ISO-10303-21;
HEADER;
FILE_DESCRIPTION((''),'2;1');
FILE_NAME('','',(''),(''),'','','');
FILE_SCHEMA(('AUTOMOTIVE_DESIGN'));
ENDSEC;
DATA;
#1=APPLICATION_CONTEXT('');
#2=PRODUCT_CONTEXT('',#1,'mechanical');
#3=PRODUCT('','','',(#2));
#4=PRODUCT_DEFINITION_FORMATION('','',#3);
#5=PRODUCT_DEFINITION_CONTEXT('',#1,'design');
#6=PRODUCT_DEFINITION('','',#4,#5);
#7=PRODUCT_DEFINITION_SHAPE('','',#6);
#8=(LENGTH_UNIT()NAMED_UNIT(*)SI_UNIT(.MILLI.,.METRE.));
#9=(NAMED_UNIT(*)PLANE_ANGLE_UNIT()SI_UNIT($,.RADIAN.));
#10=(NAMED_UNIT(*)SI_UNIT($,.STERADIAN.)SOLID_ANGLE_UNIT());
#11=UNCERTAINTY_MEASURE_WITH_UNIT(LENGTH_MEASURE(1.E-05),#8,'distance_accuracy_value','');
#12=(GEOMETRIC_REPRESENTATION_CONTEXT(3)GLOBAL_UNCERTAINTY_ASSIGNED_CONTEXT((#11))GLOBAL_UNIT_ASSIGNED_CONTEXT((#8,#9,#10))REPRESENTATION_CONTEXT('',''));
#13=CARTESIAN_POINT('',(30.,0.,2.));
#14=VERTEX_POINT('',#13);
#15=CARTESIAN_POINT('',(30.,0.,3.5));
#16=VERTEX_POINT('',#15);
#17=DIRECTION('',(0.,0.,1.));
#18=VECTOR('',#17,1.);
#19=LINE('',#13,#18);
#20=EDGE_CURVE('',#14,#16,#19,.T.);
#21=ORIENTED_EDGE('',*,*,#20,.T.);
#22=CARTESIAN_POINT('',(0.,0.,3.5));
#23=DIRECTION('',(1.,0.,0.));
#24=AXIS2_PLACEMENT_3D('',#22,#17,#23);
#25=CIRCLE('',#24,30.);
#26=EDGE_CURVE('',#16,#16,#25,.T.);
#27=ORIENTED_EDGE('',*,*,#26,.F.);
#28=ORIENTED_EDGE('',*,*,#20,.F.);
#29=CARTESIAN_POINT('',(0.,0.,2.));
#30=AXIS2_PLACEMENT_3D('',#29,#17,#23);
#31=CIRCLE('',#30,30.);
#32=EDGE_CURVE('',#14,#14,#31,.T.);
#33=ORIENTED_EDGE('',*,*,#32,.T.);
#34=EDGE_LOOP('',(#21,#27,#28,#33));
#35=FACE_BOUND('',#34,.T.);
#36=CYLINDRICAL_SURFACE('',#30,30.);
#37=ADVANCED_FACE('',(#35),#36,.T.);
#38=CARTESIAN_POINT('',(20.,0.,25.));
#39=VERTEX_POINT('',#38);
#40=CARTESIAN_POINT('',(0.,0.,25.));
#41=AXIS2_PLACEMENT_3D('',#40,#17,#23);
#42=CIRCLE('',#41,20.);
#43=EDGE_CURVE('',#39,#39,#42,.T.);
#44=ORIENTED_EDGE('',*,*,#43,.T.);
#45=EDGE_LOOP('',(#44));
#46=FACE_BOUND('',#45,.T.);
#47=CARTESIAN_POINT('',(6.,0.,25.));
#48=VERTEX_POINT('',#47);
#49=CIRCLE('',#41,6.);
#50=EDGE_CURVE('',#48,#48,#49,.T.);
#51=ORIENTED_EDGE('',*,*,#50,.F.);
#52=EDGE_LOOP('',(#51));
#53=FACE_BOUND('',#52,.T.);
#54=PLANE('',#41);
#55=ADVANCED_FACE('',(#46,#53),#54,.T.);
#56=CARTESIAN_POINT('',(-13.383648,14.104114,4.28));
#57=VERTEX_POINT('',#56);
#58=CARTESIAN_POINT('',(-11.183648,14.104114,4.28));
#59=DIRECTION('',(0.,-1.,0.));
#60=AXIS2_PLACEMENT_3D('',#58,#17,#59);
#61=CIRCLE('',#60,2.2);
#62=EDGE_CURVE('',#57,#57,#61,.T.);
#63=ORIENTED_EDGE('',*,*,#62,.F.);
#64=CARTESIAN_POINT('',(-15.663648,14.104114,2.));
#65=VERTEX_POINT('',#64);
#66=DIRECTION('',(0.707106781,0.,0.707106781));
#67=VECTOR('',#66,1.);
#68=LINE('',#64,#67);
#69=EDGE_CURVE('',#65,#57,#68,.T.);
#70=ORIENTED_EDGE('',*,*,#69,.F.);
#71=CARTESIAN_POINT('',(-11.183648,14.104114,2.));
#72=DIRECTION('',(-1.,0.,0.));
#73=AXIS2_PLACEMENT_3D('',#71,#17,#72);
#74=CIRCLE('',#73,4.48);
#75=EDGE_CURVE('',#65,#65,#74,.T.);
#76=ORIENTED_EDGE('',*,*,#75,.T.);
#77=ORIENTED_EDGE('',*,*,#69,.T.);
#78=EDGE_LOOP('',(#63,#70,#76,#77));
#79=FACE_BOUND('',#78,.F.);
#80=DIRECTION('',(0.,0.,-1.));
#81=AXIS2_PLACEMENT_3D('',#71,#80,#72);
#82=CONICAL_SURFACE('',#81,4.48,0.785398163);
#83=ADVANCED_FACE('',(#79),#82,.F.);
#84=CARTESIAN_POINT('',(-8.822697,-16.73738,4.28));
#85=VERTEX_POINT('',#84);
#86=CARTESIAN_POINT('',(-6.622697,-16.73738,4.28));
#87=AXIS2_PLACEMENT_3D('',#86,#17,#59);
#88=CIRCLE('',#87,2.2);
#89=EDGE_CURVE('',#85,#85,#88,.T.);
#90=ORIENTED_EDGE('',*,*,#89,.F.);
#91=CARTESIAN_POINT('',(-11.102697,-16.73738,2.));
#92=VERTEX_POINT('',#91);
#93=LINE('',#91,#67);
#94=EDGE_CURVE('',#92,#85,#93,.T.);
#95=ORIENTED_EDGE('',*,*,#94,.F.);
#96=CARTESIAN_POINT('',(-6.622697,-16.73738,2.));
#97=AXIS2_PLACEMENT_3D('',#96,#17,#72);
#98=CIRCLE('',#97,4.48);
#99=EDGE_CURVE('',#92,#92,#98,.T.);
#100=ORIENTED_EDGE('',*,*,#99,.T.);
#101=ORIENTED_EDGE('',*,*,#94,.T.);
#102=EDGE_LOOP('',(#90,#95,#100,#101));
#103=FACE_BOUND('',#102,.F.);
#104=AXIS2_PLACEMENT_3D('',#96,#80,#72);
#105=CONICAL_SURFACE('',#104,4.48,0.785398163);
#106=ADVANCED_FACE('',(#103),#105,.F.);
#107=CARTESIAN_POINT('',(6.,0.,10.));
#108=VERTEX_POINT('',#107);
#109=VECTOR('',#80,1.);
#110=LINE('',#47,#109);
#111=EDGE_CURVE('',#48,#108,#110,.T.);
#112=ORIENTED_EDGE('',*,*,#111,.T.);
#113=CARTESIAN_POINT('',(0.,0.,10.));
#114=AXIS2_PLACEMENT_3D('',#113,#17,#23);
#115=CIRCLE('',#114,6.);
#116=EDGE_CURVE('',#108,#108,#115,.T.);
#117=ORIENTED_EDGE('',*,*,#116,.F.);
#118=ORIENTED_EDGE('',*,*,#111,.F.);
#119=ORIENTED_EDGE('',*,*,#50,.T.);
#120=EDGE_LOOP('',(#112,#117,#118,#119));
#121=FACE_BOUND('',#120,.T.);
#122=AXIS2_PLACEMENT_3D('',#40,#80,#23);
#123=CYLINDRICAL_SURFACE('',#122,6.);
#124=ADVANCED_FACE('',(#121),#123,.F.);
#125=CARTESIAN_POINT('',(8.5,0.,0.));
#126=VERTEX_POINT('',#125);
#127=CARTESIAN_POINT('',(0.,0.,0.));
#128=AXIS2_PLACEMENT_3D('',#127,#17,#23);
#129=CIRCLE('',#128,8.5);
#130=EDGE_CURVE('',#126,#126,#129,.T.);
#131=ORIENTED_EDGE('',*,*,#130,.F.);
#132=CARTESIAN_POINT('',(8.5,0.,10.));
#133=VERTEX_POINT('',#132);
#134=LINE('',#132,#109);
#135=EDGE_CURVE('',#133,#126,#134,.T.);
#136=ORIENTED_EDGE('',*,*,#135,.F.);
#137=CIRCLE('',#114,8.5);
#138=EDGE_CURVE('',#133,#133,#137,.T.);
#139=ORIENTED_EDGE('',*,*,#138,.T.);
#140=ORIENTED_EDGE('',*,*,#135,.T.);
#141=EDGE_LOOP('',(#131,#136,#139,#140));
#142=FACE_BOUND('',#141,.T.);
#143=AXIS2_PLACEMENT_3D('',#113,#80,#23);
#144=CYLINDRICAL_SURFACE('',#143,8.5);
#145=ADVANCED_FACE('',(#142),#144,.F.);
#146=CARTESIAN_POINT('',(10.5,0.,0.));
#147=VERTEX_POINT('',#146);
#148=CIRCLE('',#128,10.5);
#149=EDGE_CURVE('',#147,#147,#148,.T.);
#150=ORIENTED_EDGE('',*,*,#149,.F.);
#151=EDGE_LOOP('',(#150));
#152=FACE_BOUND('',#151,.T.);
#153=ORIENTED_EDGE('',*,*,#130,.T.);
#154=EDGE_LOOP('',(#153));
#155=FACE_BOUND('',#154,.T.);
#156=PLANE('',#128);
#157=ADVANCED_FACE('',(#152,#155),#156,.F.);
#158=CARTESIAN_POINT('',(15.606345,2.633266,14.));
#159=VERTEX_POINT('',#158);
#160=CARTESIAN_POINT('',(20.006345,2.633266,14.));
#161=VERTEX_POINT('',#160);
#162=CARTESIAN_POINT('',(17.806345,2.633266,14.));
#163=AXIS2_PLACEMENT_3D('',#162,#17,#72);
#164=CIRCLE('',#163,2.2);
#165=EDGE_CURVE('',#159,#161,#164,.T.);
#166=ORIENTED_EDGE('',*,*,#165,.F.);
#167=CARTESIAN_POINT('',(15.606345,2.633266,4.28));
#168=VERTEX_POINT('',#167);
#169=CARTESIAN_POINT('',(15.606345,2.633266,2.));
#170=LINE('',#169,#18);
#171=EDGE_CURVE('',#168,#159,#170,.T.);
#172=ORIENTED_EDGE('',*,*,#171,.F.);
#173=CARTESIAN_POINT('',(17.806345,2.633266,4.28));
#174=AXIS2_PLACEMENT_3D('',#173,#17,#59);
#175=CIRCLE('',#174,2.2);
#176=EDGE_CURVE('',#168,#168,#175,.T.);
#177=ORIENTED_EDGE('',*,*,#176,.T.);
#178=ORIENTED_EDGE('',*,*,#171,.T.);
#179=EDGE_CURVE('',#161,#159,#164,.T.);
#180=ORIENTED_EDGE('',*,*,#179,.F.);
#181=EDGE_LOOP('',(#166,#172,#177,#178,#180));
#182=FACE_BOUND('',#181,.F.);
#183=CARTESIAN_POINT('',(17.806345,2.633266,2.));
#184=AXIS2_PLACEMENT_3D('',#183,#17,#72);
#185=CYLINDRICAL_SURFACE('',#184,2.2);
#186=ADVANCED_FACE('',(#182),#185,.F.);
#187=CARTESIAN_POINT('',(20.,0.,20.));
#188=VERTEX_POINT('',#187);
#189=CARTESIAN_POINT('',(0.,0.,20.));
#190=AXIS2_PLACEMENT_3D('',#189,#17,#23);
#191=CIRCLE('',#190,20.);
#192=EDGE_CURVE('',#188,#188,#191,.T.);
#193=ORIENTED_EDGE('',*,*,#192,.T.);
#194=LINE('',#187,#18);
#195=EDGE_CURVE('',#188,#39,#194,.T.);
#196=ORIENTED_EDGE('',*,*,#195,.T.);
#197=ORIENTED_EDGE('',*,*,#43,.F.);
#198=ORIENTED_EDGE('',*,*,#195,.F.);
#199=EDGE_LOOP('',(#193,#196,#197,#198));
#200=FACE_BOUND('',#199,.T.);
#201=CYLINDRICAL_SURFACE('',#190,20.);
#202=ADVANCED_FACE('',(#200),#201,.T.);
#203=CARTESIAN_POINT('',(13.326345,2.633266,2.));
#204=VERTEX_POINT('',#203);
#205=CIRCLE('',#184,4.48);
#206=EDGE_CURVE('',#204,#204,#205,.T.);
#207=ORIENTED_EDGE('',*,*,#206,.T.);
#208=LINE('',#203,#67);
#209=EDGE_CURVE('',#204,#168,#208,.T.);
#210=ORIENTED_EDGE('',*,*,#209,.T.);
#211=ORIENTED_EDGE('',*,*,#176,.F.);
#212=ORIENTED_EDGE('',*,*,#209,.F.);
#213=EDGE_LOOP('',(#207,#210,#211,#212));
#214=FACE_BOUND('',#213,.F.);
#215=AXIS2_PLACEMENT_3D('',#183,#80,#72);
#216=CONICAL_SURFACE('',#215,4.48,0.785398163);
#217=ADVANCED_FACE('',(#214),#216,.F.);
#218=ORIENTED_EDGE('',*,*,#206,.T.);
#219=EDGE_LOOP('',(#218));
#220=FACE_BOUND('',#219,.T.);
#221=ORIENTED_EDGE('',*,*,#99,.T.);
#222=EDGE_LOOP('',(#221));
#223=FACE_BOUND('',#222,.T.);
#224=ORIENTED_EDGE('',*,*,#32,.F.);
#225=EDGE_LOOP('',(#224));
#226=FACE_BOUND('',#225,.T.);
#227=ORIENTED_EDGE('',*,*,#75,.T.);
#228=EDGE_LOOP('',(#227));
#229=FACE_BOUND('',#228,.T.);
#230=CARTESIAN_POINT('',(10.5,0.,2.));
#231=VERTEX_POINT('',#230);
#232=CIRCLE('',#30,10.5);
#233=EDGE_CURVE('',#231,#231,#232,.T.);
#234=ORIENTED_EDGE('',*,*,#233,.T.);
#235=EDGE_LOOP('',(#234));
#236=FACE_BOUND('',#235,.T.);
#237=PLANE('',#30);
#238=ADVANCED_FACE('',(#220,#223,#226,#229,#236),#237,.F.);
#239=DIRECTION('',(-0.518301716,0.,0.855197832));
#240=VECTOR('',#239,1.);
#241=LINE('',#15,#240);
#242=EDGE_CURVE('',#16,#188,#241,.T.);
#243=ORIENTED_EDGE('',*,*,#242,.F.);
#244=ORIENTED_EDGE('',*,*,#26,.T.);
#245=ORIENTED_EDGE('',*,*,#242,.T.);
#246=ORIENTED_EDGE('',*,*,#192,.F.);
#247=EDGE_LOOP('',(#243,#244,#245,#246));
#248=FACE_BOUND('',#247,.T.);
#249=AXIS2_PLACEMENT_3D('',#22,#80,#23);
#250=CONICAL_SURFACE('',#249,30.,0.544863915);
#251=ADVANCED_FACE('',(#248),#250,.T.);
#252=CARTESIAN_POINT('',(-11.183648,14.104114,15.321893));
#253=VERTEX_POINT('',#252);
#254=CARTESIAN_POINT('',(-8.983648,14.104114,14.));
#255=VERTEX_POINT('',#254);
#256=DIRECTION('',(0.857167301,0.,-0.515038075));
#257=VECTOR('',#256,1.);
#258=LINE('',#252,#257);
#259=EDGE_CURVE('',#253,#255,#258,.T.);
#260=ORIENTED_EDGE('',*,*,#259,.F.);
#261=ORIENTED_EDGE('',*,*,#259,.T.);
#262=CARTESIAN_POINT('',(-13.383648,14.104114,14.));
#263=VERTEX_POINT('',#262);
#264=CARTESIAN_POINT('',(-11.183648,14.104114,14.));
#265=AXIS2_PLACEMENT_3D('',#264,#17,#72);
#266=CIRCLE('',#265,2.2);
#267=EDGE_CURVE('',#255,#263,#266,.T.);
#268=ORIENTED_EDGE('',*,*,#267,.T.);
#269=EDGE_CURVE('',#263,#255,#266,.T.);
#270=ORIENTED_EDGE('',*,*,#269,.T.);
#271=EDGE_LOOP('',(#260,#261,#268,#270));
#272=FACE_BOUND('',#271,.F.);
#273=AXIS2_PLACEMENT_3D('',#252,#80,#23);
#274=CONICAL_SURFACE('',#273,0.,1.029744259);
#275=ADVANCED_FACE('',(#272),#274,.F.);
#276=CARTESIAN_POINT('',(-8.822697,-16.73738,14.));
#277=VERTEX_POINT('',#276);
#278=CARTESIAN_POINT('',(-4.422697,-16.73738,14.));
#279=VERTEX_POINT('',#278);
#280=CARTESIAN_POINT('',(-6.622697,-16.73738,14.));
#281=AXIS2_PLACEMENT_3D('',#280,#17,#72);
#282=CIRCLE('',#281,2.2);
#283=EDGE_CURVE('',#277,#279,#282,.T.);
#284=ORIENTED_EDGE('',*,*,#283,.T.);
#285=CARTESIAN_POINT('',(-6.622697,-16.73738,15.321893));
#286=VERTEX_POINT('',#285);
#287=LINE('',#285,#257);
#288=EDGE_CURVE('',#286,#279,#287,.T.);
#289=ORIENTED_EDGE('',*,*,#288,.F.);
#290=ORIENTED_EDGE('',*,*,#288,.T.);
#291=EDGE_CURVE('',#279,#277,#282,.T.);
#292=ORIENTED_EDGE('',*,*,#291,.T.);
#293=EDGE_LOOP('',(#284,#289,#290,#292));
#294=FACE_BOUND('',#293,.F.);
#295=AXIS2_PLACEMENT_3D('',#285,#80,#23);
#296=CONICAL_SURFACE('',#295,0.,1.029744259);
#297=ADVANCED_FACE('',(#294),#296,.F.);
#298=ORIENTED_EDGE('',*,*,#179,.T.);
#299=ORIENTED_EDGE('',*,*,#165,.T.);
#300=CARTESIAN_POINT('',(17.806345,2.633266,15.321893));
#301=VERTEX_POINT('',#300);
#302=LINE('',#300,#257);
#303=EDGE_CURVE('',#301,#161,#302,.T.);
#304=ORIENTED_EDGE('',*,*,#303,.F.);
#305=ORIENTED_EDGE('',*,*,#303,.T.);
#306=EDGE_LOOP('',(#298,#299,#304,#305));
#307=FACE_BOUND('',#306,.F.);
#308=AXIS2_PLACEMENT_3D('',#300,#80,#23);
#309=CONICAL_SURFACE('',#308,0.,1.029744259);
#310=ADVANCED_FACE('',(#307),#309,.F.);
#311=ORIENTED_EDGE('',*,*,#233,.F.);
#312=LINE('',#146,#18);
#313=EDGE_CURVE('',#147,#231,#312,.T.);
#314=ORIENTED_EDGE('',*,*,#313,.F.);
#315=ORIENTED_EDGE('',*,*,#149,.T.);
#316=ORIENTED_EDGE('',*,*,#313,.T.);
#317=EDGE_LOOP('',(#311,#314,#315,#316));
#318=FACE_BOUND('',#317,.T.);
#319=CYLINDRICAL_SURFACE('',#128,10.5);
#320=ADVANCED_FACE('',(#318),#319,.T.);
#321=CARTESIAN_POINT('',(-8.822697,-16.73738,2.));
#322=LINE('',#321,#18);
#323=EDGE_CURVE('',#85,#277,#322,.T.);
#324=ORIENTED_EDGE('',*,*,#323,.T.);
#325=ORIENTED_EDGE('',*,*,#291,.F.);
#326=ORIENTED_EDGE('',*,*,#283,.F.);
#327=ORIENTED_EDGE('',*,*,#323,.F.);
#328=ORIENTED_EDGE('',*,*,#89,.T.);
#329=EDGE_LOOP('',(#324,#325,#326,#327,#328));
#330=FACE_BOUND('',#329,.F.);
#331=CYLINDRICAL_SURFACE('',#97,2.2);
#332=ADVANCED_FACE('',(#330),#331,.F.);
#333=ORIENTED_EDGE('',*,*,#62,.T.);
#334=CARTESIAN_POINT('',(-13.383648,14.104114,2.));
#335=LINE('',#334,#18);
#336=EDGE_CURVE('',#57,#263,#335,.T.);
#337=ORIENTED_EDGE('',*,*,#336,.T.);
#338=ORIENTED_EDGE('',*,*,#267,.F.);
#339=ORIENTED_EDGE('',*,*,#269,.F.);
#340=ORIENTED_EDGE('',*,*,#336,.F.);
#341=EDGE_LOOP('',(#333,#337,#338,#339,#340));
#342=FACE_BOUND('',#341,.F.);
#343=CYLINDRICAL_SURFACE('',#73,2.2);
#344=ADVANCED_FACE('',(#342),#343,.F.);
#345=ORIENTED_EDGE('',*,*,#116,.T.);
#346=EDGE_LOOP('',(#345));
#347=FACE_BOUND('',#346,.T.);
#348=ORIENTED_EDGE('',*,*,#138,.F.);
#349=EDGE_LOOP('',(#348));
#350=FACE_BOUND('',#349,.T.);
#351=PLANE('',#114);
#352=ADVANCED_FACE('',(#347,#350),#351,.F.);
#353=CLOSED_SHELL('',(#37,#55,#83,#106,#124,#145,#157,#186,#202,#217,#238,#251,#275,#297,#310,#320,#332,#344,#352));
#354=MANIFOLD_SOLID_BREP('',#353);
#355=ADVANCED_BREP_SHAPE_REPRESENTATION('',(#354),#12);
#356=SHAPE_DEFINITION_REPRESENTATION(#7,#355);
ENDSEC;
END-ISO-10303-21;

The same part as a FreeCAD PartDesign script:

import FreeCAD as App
import Part
import Sketcher
from FreeCAD import Vector


def add_polygon(sketch, points):
    """Adds a closed chain of lines whose ends are joined by coincident constraints."""
    first, n = sketch.GeometryCount, len(points)
    for a, b in zip(points, points[1:] + points[:1]):
        sketch.addGeometry(Part.LineSegment(App.Vector(*a, 0), App.Vector(*b, 0)), False)
    for i in range(n):
        sketch.addConstraint(Sketcher.Constraint("Coincident", first + i, 2, first + (i + 1) % n, 1))

doc = App.newDocument("Part")
params = doc.addObject("Spreadsheet::Sheet", "Params")
for row, (alias, value) in enumerate([
    ("sketch1_width", "14 mm"),
    ("sketch1_width2", "2 mm"),
    ("sketch1_height", "15 mm"),
    ("sketch1_height2", "10 mm"),
    ("sketch1_height3", "5 mm"),
    ("revolution_angle", "360 deg"),
    ("sketch2_diameter", "4.4 mm"),
    ("hole_diameter", "4.4 mm"),
    ("hole_depth", "12 mm"),
    ("hole_csink_diameter", "8.96 mm"),
], start=1):
    params.set(f"A{row}", alias)
    params.set(f"B{row}", "=" + value)
    params.setAlias(f"B{row}", alias)

body = doc.addObject("PartDesign::Body", "Body")

# Sketch on XZ plane
sketch1 = doc.addObject("Sketcher::SketchObject", "Sketch")
body.addObject(sketch1)
sketch1.AttachmentSupport = (doc.XZ_Plane, [""])
sketch1.MapMode = "FlatFace"
add_polygon(sketch1, [(20, 25), (6, 25), (6, 10), (8.5, 10), (8.5, 0), (10.5, 0), (10.5, 2), (30, 2), (30, 3.5), (20, 20)])  # lines 0-9
sketch1.addConstraint([
    Sketcher.Constraint("Horizontal", 0),
    Sketcher.Constraint("Vertical", 1),
    Sketcher.Constraint("Horizontal", 2),
    Sketcher.Constraint("Vertical", 3),
    Sketcher.Constraint("Horizontal", 4),
    Sketcher.Constraint("Vertical", 5),
    Sketcher.Constraint("Horizontal", 6),
    Sketcher.Constraint("Vertical", 7),
    Sketcher.Constraint("Vertical", 9),
    Sketcher.Constraint("PointOnObject", 3, 2, -1),
    Sketcher.Constraint("Equal", 4, 5),
    Sketcher.Constraint("DistanceX", 0, 2, 0, 1, 14.0),
    Sketcher.Constraint("DistanceX", 4, 1, 4, 2, 2.0),
    Sketcher.Constraint("DistanceY", 1, 2, 1, 1, 15.0),
    Sketcher.Constraint("DistanceY", 3, 2, 3, 1, 10.0),
    Sketcher.Constraint("DistanceY", 9, 1, 9, 2, 5.0),
    Sketcher.Constraint("DistanceX", 2, 1, 2, 2, 2.5),
    Sketcher.Constraint("DistanceX", 6, 1, 6, 2, 19.5),
    Sketcher.Constraint("DistanceY", 7, 1, 7, 2, 1.5),
    Sketcher.Constraint("DistanceX", -1, 1, 0, 2, 6.0),
])
sketch1.setExpression("Constraints[21]", "Params.sketch1_width")
sketch1.setExpression("Constraints[22]", "Params.sketch1_width2")
sketch1.setExpression("Constraints[23]", "Params.sketch1_height")
sketch1.setExpression("Constraints[24]", "Params.sketch1_height2")
sketch1.setExpression("Constraints[25]", "Params.sketch1_height3")
revolution = doc.addObject("PartDesign::Revolution", "Revolution")
body.addObject(revolution)
revolution.Profile = sketch1
revolution.ReferenceAxis = (sketch1, ["V_Axis"])
revolution.setExpression("Angle", "Params.revolution_angle")

# Sketch on XY plane
sketch2 = doc.addObject("Sketcher::SketchObject", "Sketch001")
body.addObject(sketch2)
sketch2.AttachmentSupport = (doc.XY_Plane, [""])
sketch2.MapMode = "FlatFace"
sketch2.AttachmentOffset = App.Placement(Vector(0, 0, 2), App.Rotation())
sketch2.addGeometry([
    Part.Circle(Vector(-6.6, -16.7, 0), Vector(0, 0, 1), 2.2),
    Part.Circle(Vector(-11.2, 14.1, 0), Vector(0, 0, 1), 2.2),
    Part.Circle(Vector(17.8, 2.6, 0), Vector(0, 0, 1), 2.2),
], False)
sketch2.addConstraint([
    Sketcher.Constraint("Equal", 0, 1),
    Sketcher.Constraint("Equal", 1, 2),
    Sketcher.Constraint("Diameter", 0, 4.4),
    Sketcher.Constraint("DistanceY", 0, 3, -1, 1, 16.73738),
    Sketcher.Constraint("DistanceX", 1, 3, 0, 3, 4.56095),
    Sketcher.Constraint("DistanceX", 0, 3, 2, 3, 24.429042),
    Sketcher.Constraint("DistanceX", 0, 3, -1, 1, 6.622697),
    Sketcher.Constraint("DistanceY", -1, 1, 1, 3, 14.104114),
    Sketcher.Constraint("DistanceY", -1, 1, 2, 3, 2.633266),
])
sketch2.setExpression("Constraints[2]", "Params.sketch2_diameter")
doc.recompute()
hole = doc.addObject("PartDesign::Hole", "Hole")
body.addObject(hole)
hole.Profile = sketch2
hole.ThreadType = "None"
hole.setExpression("Diameter", "Params.hole_diameter")
hole.DepthType = "Dimension"
hole.setExpression("Depth", "Params.hole_depth")
hole.DrillPoint = "Angled"
hole.DrillPointAngle = 118
hole.HoleCutType = "Countersink"
hole.setExpression("HoleCutDiameter", "Params.hole_csink_diameter")
hole.HoleCutCountersinkAngle = 90
hole.Reversed = True

doc.recompute()
